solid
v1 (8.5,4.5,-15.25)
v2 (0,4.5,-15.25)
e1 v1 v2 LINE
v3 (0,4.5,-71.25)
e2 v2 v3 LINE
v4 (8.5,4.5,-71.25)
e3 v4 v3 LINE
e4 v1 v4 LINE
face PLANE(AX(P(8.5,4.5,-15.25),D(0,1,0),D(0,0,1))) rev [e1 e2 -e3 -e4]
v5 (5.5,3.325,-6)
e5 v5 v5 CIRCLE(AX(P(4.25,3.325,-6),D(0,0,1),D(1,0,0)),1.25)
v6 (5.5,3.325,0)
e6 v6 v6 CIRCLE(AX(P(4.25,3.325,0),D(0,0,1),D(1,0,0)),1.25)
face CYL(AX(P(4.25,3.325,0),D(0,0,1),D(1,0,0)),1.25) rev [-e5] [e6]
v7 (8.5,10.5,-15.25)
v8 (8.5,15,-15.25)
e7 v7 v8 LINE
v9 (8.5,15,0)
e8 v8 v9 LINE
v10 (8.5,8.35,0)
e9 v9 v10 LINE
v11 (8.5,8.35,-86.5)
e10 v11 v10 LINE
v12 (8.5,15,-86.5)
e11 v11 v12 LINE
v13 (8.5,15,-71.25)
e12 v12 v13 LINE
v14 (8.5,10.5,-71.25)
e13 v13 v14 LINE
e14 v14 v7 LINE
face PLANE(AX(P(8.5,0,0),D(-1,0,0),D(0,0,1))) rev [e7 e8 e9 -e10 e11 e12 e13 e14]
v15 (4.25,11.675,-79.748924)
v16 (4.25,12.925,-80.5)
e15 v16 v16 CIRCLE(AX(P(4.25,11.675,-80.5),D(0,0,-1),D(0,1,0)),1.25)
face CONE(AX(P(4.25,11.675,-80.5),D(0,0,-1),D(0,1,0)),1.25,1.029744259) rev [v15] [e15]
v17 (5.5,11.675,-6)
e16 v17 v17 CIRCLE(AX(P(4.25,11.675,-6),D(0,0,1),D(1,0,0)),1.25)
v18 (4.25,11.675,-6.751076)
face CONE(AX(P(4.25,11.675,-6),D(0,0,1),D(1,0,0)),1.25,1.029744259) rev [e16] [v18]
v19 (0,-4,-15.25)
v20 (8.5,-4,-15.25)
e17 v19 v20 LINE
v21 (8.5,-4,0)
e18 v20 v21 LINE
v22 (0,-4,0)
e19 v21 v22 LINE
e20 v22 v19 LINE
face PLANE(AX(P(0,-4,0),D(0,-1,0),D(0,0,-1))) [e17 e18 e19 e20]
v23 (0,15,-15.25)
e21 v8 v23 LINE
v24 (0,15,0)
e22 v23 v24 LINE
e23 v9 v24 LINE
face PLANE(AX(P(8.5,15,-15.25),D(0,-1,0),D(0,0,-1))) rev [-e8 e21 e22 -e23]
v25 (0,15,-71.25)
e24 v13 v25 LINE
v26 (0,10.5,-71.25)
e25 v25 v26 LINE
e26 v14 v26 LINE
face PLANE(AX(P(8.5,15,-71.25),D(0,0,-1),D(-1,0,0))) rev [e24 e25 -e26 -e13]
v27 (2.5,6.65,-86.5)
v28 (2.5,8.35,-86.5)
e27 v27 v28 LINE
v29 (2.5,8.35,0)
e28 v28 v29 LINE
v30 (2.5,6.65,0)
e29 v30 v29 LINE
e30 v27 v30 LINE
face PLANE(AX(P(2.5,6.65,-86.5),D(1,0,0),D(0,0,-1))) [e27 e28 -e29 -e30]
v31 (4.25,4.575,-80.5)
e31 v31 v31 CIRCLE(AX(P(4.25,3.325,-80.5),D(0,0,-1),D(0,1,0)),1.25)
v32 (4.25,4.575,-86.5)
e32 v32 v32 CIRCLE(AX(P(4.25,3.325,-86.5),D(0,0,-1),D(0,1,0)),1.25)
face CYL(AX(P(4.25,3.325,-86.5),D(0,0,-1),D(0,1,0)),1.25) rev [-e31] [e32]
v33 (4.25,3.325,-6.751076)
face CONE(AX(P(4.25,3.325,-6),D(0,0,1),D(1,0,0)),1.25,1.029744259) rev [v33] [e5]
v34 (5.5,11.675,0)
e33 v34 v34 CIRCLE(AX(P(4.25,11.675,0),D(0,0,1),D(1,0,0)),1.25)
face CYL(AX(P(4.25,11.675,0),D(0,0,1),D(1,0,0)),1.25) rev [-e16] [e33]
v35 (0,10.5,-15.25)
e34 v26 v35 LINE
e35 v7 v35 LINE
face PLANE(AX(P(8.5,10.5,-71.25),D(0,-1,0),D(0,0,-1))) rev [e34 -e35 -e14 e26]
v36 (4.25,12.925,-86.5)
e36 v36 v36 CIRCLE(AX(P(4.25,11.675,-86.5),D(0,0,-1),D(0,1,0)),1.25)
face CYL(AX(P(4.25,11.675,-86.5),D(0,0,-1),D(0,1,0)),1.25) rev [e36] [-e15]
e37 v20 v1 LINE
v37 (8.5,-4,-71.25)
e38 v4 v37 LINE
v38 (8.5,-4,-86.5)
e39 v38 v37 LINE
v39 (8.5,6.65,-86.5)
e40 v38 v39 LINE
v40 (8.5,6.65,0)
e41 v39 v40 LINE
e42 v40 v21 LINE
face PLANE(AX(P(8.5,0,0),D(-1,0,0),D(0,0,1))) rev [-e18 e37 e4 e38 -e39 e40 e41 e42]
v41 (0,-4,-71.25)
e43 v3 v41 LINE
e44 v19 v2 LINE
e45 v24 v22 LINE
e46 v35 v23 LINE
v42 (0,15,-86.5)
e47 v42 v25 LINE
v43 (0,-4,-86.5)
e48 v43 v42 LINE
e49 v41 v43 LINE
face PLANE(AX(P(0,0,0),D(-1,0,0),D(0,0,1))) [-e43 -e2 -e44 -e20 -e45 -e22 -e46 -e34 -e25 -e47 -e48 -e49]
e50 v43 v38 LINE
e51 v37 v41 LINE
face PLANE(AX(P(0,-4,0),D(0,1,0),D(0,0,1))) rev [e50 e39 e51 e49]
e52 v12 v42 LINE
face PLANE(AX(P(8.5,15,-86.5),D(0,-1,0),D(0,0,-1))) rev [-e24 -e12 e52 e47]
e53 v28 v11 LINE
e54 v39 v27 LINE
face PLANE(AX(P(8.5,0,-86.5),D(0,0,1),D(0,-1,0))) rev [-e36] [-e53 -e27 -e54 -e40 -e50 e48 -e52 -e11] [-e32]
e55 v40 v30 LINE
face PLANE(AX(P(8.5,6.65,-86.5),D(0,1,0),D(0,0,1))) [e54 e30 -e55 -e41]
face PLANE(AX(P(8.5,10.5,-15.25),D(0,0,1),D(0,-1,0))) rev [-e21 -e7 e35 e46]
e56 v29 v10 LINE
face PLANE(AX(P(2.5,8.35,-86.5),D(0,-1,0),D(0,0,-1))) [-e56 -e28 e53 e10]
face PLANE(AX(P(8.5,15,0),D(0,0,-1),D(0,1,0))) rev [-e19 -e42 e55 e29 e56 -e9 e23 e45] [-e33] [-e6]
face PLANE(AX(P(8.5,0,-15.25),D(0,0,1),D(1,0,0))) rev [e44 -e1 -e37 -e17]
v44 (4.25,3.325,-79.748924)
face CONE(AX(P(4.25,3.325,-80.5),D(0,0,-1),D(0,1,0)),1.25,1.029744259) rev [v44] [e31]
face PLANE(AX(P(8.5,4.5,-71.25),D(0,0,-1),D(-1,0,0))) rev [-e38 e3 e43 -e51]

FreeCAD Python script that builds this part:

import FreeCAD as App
import Part
import Sketcher
Q = App.Units.Quantity


def add_polygon(sketch, points):
    """Adds a closed chain of lines whose ends are joined by coincident constraints."""
    first, n = sketch.GeometryCount, len(points)
    for a, b in zip(points, points[1:] + points[:1]):
        sketch.addGeometry(Part.LineSegment(App.Vector(*a, 0), App.Vector(*b, 0)), False)
    for i in range(n):
        sketch.addConstraint(Sketcher.Constraint("Coincident", first + i, 2, first + (i + 1) % n, 1))

doc = App.newDocument("Part")
body = doc.addObject("PartDesign::Body", "Body")

sketch1 = body.newObject("Sketcher::SketchObject", "Sketch")
sketch1.AttachmentSupport = (doc.getObject("YZ_Plane"), [""])
sketch1.MapMode = "FlatFace"
add_polygon(sketch1, [(0, 0), (0, -15.2), (4.5, -15.2), (4.5, -71.2), (0, -71.2), (0, -86.5), (15, -86.5), (15, -71.2), (10.5, -71.2), (10.5, -15.2), (15, -15.2), (15, 0)])
sketch1.addConstraint(Sketcher.Constraint("Vertical", 0))
sketch1.addConstraint(Sketcher.Constraint("Horizontal", 1))
sketch1.addConstraint(Sketcher.Constraint("Vertical", 2))
sketch1.addConstraint(Sketcher.Constraint("Horizontal", 3))
sketch1.addConstraint(Sketcher.Constraint("Vertical", 4))
sketch1.addConstraint(Sketcher.Constraint("Horizontal", 5))
sketch1.addConstraint(Sketcher.Constraint("Vertical", 6))
sketch1.addConstraint(Sketcher.Constraint("Horizontal", 7))
sketch1.addConstraint(Sketcher.Constraint("Vertical", 8))
sketch1.addConstraint(Sketcher.Constraint("Horizontal", 9))
sketch1.addConstraint(Sketcher.Constraint("Vertical", 10))
sketch1.addConstraint(Sketcher.Constraint("Horizontal", 11))
sketch1.addConstraint(Sketcher.Constraint("Coincident", 11, 2, -1, 1))
sketch1.addConstraint(Sketcher.Constraint("PointOnObject", 3, 2, -2))
sketch1.addConstraint(Sketcher.Constraint("Horizontal", 3, 2, 6, 2))
sketch1.addConstraint(Sketcher.Constraint("Horizontal", 1, 2, 8, 2))
sketch1.addConstraint(Sketcher.Constraint("Vertical", 6, 2, 9, 2))
sketch1.addConstraint(Sketcher.Constraint("Equal", 3, 7))
sketch1.addConstraint(Sketcher.Constraint("Equal", 0, 4))
sketch1.addConstraint(Sketcher.Constraint("DistanceX", 5, 1, 5, 2, Q("15 mm")))
sketch1.addConstraint(Sketcher.Constraint("DistanceY", 2, 2, 2, 1, Q("56 mm")))
sketch1.addConstraint(Sketcher.Constraint("DistanceX", 1, 1, 1, 2, Q("4.5 mm")))
sketch1.addConstraint(Sketcher.Constraint("DistanceY", 0, 2, 0, 1, Q("15.25 mm")))
pad1 = body.newObject("PartDesign::Pad", "Pad")
pad1.Profile = sketch1
pad1.Length = 8.5

sketch2 = body.newObject("Sketcher::SketchObject", "Sketch001")
sketch2.AttachmentSupport = (doc.getObject("XY_Plane"), [""])
sketch2.MapMode = "FlatFace"
add_polygon(sketch2, [(2.5, 8.3), (2.5, 6.7), (8.5, 6.7), (8.5, 8.3)])
sketch2.addConstraint(Sketcher.Constraint("Vertical", 0))
sketch2.addConstraint(Sketcher.Constraint("Horizontal", 1))
sketch2.addConstraint(Sketcher.Constraint("Vertical", 2))
sketch2.addConstraint(Sketcher.Constraint("Horizontal", 3))
sketch2.addConstraint(Sketcher.Constraint("DistanceX", 1, 1, 1, 2, Q("6 mm")))
sketch2.addConstraint(Sketcher.Constraint("DistanceY", 0, 2, 0, 1, Q("1.7 mm")))
sketch2.addConstraint(Sketcher.Constraint("DistanceX", -1, 1, 0, 2, Q("2.5 mm")))
sketch2.addConstraint(Sketcher.Constraint("DistanceY", -1, 1, 0, 2, Q("6.65 mm")))
pocket1 = body.newObject("PartDesign::Pocket", "Pocket")
pocket1.Profile = sketch2
pocket1.Type = "ThroughAll"

sketch3 = body.newObject("Sketcher::SketchObject", "Sketch002")
sketch3.AttachmentSupport = (doc.getObject("YZ_Plane"), [""])
sketch3.MapMode = "FlatFace"
sketch3.AttachmentOffset = App.Placement(App.Vector(0, 0, 4.25), App.Rotation())
add_polygon(sketch3, [(3.3, -6.8), (3.3, 0), (2.1, 0), (2.1, -6)])
sketch3.addGeometry(Part.LineSegment(App.Vector(3.3, 0, 0), App.Vector(3.3, -6.8, 0)), True)
sketch3.addConstraint(Sketcher.Constraint("Vertical", 0))
sketch3.addConstraint(Sketcher.Constraint("Horizontal", 1))
sketch3.addConstraint(Sketcher.Constraint("Vertical", 2))
sketch3.addConstraint(Sketcher.Constraint("Vertical", 4))
sketch3.addConstraint(Sketcher.Constraint("Coincident", 4, 1, 0, 2))
sketch3.addConstraint(Sketcher.Constraint("PointOnObject", 0, 2, -1))
sketch3.addConstraint(Sketcher.Constraint("Equal", 0, 4))
sketch3.addConstraint(Sketcher.Constraint("DistanceY", 2, 2, 2, 1, Q("6 mm")))
sketch3.addConstraint(Sketcher.Constraint("Angle", 3, Q("-31 deg")))
sketch3.addConstraint(Sketcher.Constraint("DistanceX", 1, 2, 1, 1, Q("1.25 mm")))
sketch3.addConstraint(Sketcher.Constraint("DistanceX", -1, 1, 0, 2, Q("3.325 mm")))
groove = body.newObject("PartDesign::Groove", "Groove")
groove.Profile = sketch3
groove.ReferenceAxis = (sketch3, ["Axis0"])
groove.Angle = 360
doc.recompute()

linearpattern = body.newObject("PartDesign::LinearPattern", "LinearPattern")
linearpattern.Originals = [groove]
linearpattern.Direction = (doc.getObject("Y_Axis"), [""])
linearpattern.Mode = "offset"
linearpattern.Offset = 8.35
linearpattern.Occurrences = 2
body.Tip = linearpattern
doc.recompute()

datumplane = body.newObject("PartDesign::Plane", "DatumPlane")
datumplane.AttachmentSupport = (doc.getObject("XY_Plane"), [""])
datumplane.MapMode = "FlatFace"
datumplane.AttachmentOffset = App.Placement(App.Vector(0, 0, -43.25), App.Rotation())
mirrored = body.newObject("PartDesign::Mirrored", "Mirrored")
mirrored.Originals = [groove]
mirrored.MirrorPlane = (datumplane, [""])
body.Tip = mirrored

sketch4 = body.newObject("Sketcher::SketchObject", "Sketch003")
sketch4.AttachmentSupport = (doc.getObject("YZ_Plane"), [""])
sketch4.MapMode = "FlatFace"
sketch4.AttachmentOffset = App.Placement(App.Vector(0, 0, 4.25), App.Rotation())
add_polygon(sketch4, [(11.7, -86.5), (11.7, -79.7), (10.4, -80.5), (10.4, -86.5)])
sketch4.addGeometry(Part.LineSegment(App.Vector(11.7, -79.7, 0), App.Vector(11.7, -86.5, 0)), True)
sketch4.addConstraint(Sketcher.Constraint("Vertical", 0))
sketch4.addConstraint(Sketcher.Constraint("Vertical", 2))
sketch4.addConstraint(Sketcher.Constraint("Horizontal", 3))
sketch4.addConstraint(Sketcher.Constraint("Vertical", 4))
sketch4.addConstraint(Sketcher.Constraint("Coincident", 4, 1, 0, 2))
sketch4.addConstraint(Sketcher.Constraint("Horizontal", 2, 2, 4, 2))
sketch4.addConstraint(Sketcher.Constraint("DistanceY", 2, 2, 2, 1, Q("6 mm")))
sketch4.addConstraint(Sketcher.Constraint("Angle", 1, Q("-149 deg")))
sketch4.addConstraint(Sketcher.Constraint("DistanceX", 3, 1, 3, 2, Q("1.25 mm")))
sketch4.addConstraint(Sketcher.Constraint("DistanceY", 1, 2, -1, 1, Q("80.5 mm")))
sketch4.addConstraint(Sketcher.Constraint("DistanceX", -1, 1, 0, 2, Q("11.675 mm")))
groove2 = body.newObject("PartDesign::Groove", "Groove001")
groove2.Profile = sketch4
groove2.ReferenceAxis = (sketch4, ["Axis0"])
groove2.Angle = 360

sketch5 = body.newObject("Sketcher::SketchObject", "Sketch004")
sketch5.AttachmentSupport = (doc.getObject("XZ_Plane"), [""])
sketch5.MapMode = "FlatFace"
add_polygon(sketch5, [(0, 0), (0, -15), (8, -15), (8, 0)])
sketch5.addConstraint(Sketcher.Constraint("Vertical", 0))
sketch5.addConstraint(Sketcher.Constraint("Horizontal", 1))
sketch5.addConstraint(Sketcher.Constraint("Vertical", 2))
sketch5.addConstraint(Sketcher.Constraint("Horizontal", 3))
sketch5.addConstraint(Sketcher.Constraint("Coincident", 3, 2, -1, 1))
sketch5.addConstraint(Sketcher.Constraint("DistanceX", 1, 1, 1, 2, Q("8.5 mm")))
sketch5.addConstraint(Sketcher.Constraint("DistanceY", 0, 2, 0, 1, Q("15.25 mm")))
pad2 = body.newObject("PartDesign::Pad", "Pad001")
pad2.Profile = sketch5
pad2.Length = 4

sketch6 = body.newObject("Sketcher::SketchObject", "Sketch005")
sketch6.AttachmentSupport = (doc.getObject("XZ_Plane"), [""])
sketch6.MapMode = "FlatFace"
add_polygon(sketch6, [(0, -71), (0, -86), (8, -86), (8, -71)])
sketch6.addConstraint(Sketcher.Constraint("Vertical", 0))
sketch6.addConstraint(Sketcher.Constraint("Horizontal", 1))
sketch6.addConstraint(Sketcher.Constraint("Vertical", 2))
sketch6.addConstraint(Sketcher.Constraint("Horizontal", 3))
sketch6.addConstraint(Sketcher.Constraint("PointOnObject", 0, 2, -2))
sketch6.addConstraint(Sketcher.Constraint("DistanceX", 1, 1, 1, 2, Q("8.5 mm")))
sketch6.addConstraint(Sketcher.Constraint("DistanceY", 0, 2, 0, 1, Q("15.25 mm")))
sketch6.addConstraint(Sketcher.Constraint("DistanceY", 0, 2, -1, 1, Q("86.5 mm")))
pad3 = body.newObject("PartDesign::Pad", "Pad002")
pad3.Profile = sketch6
pad3.Length = 4

doc.recompute()
